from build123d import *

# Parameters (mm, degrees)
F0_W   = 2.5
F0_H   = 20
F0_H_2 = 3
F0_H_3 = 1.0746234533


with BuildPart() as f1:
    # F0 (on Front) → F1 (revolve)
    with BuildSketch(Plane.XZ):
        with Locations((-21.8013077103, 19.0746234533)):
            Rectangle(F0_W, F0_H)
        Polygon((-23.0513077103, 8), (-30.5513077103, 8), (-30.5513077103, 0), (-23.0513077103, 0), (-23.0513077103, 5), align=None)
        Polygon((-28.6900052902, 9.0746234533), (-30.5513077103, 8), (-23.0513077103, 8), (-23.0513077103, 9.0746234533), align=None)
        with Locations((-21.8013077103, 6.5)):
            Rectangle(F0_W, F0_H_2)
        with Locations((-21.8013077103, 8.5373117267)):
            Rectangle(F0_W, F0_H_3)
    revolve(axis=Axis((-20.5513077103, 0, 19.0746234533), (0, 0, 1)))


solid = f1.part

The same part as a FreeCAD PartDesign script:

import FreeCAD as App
import Part
import Sketcher
from FreeCAD import Vector
Q = App.Units.Quantity

doc = App.newDocument("Part")
body = doc.addObject("PartDesign::Body", "Body")

# Sketch on XZ plane
sketch1 = body.newObject("Sketcher::SketchObject", "Sketch")
sketch1.AttachmentSupport = (doc.getObject("XZ_Plane"), [""])
sketch1.MapMode = "FlatFace"
sketch1.addGeometry([
    Part.LineSegment(Vector(-23.1, 29.1, 0), Vector(-23.1, 9.1, 0)),  # 0
    Part.LineSegment(Vector(-23.1, 9.1, 0), Vector(-28.7, 9.1, 0)),  # 1
    Part.LineSegment(Vector(-28.7, 9.1, 0), Vector(-30.6, 8, 0)),  # 2
    Part.LineSegment(Vector(-30.6, 8, 0), Vector(-30.6, 0, 0)),  # 3
    Part.LineSegment(Vector(-30.6, 0, 0), Vector(-23.1, 0, 0)),  # 4
    Part.LineSegment(Vector(-23.1, 0, 0), Vector(-23.1, 5, 0)),  # 5
    Part.LineSegment(Vector(-23.1, 5, 0), Vector(-20.6, 5, 0)),  # 6
    Part.LineSegment(Vector(-20.6, 5, 0), Vector(-20.6, 29.1, 0)),  # 7
    Part.LineSegment(Vector(-20.6, 29.1, 0), Vector(-23.1, 29.1, 0)),  # 8
], False)
sketch1.addGeometry(Part.LineSegment(Vector(-20.6, 0, 0), Vector(-20.6, 29.1, 0)), True)  # axis
sketch1.addConstraint([
    Sketcher.Constraint("Coincident", 0, 2, 1, 1),
    Sketcher.Constraint("Coincident", 1, 2, 2, 1),
    Sketcher.Constraint("Coincident", 2, 2, 3, 1),
    Sketcher.Constraint("Coincident", 3, 2, 4, 1),
    Sketcher.Constraint("Coincident", 4, 2, 5, 1),
    Sketcher.Constraint("Coincident", 5, 2, 6, 1),
    Sketcher.Constraint("Coincident", 6, 2, 7, 1),
    Sketcher.Constraint("Coincident", 7, 2, 8, 1),
    Sketcher.Constraint("Coincident", 8, 2, 0, 1),
    Sketcher.Constraint("Vertical", 0),
    Sketcher.Constraint("Horizontal", 1),
    Sketcher.Constraint("Vertical", 3),
    Sketcher.Constraint("Horizontal", 4),
    Sketcher.Constraint("Vertical", 5),
    Sketcher.Constraint("Horizontal", 6),
    Sketcher.Constraint("Vertical", 7),
    Sketcher.Constraint("Horizontal", 8),
    Sketcher.Constraint("Vertical", 9),
    Sketcher.Constraint("Coincident", 9, 2, 7, 2),
    Sketcher.Constraint("PointOnObject", 3, 2, -1),
    Sketcher.Constraint("PointOnObject", 9, 1, -1),
    Sketcher.Constraint("Vertical", 0, 2, 4, 2),
    Sketcher.Constraint("DistanceY", 0, 2, 0, 1, Q("20 mm")),
    Sketcher.Constraint("DistanceY", 3, 2, 3, 1, Q("8 mm")),
    Sketcher.Constraint("DistanceY", 5, 1, 5, 2, Q("5 mm")),
    Sketcher.Constraint("Angle", 2, Q("-150 deg")),
    Sketcher.Constraint("DistanceX", 4, 1, 4, 2, Q("7.5 mm")),
    Sketcher.Constraint("DistanceX", 6, 1, 6, 2, Q("2.5 mm")),
    Sketcher.Constraint("DistanceX", 1, 2, 1, 1, Q("5.638698 mm")),
    Sketcher.Constraint("DistanceX", 0, 2, -1, 1, Q("23.051308 mm")),
])
revolution = body.newObject("PartDesign::Revolution", "Revolution")
revolution.Profile = sketch1
revolution.ReferenceAxis = (sketch1, ["Axis0"])
revolution.Angle = 360

doc.recompute()
